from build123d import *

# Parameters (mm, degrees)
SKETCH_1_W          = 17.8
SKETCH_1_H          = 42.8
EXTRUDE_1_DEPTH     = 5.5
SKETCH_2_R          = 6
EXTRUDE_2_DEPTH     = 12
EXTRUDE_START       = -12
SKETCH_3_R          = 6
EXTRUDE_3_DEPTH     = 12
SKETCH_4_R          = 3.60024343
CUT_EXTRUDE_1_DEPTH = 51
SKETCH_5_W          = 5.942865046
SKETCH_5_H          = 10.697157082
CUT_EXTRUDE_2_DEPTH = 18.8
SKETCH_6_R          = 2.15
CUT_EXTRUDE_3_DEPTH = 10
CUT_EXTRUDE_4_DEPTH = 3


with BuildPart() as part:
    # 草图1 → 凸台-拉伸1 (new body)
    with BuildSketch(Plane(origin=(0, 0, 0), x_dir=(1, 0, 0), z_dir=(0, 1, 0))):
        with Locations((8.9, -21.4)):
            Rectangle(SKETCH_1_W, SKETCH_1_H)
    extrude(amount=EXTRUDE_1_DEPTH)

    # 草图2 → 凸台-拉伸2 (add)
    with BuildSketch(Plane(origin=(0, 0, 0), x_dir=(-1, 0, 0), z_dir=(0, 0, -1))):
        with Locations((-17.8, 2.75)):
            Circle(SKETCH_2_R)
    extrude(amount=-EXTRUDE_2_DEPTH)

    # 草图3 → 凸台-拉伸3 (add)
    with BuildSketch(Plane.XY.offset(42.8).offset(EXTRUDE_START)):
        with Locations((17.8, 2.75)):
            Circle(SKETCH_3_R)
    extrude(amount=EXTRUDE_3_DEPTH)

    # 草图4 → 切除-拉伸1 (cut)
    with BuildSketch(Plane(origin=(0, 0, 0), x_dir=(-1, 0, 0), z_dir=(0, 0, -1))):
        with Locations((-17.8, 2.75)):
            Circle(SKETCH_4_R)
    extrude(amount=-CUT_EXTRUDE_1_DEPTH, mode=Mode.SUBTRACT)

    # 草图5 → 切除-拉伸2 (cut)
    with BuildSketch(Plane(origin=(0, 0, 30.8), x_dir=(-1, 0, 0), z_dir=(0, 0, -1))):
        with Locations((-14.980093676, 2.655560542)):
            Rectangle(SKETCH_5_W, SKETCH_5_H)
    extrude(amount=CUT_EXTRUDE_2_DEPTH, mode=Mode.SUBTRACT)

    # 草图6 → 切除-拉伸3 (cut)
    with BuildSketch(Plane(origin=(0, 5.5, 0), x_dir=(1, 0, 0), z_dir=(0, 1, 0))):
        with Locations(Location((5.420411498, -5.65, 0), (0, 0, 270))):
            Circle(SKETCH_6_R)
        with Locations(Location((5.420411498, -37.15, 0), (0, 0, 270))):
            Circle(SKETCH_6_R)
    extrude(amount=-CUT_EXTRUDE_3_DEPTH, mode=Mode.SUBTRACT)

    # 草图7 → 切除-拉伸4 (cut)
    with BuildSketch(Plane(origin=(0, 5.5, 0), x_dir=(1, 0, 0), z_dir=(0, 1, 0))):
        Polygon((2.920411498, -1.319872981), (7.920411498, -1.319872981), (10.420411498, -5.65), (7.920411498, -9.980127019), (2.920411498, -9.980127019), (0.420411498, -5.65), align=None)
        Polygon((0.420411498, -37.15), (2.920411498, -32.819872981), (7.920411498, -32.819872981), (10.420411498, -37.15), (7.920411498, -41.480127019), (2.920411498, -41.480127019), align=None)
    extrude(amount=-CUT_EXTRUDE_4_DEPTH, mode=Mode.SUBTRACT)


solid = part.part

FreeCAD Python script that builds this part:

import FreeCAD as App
import Part
import Sketcher
from FreeCAD import Vector
Q = App.Units.Quantity


def add_polygon(sketch, points):
    """Adds a closed chain of lines whose ends are joined by coincident constraints."""
    first, n = sketch.GeometryCount, len(points)
    for a, b in zip(points, points[1:] + points[:1]):
        sketch.addGeometry(Part.LineSegment(App.Vector(*a, 0), App.Vector(*b, 0)), False)
    for i in range(n):
        sketch.addConstraint(Sketcher.Constraint("Coincident", first + i, 2, first + (i + 1) % n, 1))

doc = App.newDocument("Part")
body = doc.addObject("PartDesign::Body", "Body")

# Sketch on XZ plane
sketch1 = body.newObject("Sketcher::SketchObject", "Sketch")
sketch1.AttachmentSupport = (doc.getObject("XZ_Plane"), [""])
sketch1.MapMode = "FlatFace"
add_polygon(sketch1, [(0, 0), (0, 42.8), (17.8, 42.8), (17.8, 0)])  # lines 0-3
sketch1.addConstraint(Sketcher.Constraint("Vertical", 0))
sketch1.addConstraint(Sketcher.Constraint("Horizontal", 1))
sketch1.addConstraint(Sketcher.Constraint("Vertical", 2))
sketch1.addConstraint(Sketcher.Constraint("Horizontal", 3))
sketch1.addConstraint(Sketcher.Constraint("Coincident", 3, 2, -1, 1))
sketch1.addConstraint(Sketcher.Constraint("DistanceX", 1, 1, 1, 2, 17.8))
sketch1.addConstraint(Sketcher.Constraint("DistanceY", 0, 1, 0, 2, 42.8))
pad1 = body.newObject("PartDesign::Pad", "Pad")
pad1.Profile = sketch1
pad1.Length = 5.5
pad1.Reversed = True

# Sketch on XY plane
sketch2 = body.newObject("Sketcher::SketchObject", "Sketch001")
sketch2.AttachmentSupport = (doc.getObject("XY_Plane"), [""])
sketch2.MapMode = "FlatFace"
sketch2.addGeometry(Part.Circle(Vector(17.8, 2.75, 0), Vector(0, 0, 1), 6), False)
sketch2.addConstraint(Sketcher.Constraint("Diameter", 0, 12.0))
sketch2.addConstraint(Sketcher.Constraint("DistanceX", -1, 1, 0, 3, 17.8))
sketch2.addConstraint(Sketcher.Constraint("DistanceY", -1, 1, 0, 3, 2.75))
pad2 = body.newObject("PartDesign::Pad", "Pad001")
pad2.Profile = sketch2
pad2.Length = 12

# Sketch on XY plane
sketch3 = body.newObject("Sketcher::SketchObject", "Sketch002")
sketch3.AttachmentSupport = (doc.getObject("XY_Plane"), [""])
sketch3.MapMode = "FlatFace"
sketch3.AttachmentOffset = App.Placement(Vector(0, 0, 30.8), App.Rotation())
sketch3.addGeometry(Part.Circle(Vector(17.8, 2.75, 0), Vector(0, 0, 1), 6), False)
sketch3.addConstraint(Sketcher.Constraint("Diameter", 0, 12.0))
sketch3.addConstraint(Sketcher.Constraint("DistanceX", -1, 1, 0, 3, 17.8))
sketch3.addConstraint(Sketcher.Constraint("DistanceY", -1, 1, 0, 3, 2.75))
pad3 = body.newObject("PartDesign::Pad", "Pad002")
pad3.Profile = sketch3
pad3.Length = 12

# Sketch on XY plane
sketch4 = body.newObject("Sketcher::SketchObject", "Sketch003")
sketch4.AttachmentSupport = (doc.getObject("XY_Plane"), [""])
sketch4.MapMode = "FlatFace"
sketch4.addGeometry(Part.Circle(Vector(17.8, 2.75, 0), Vector(0, 0, 1), 3.600243), False)
sketch4.addConstraint(Sketcher.Constraint("DistanceX", -1, 1, 0, 3, 17.8))
sketch4.addConstraint(Sketcher.Constraint("DistanceY", -1, 1, 0, 3, 2.75))
sketch4.addConstraint(Sketcher.Constraint("Diameter", 0, 7.200487))
pocket1 = body.newObject("PartDesign::Pocket", "Pocket")
pocket1.Profile = sketch4
pocket1.Length = 51
pocket1.Reversed = True

# Sketch on XY plane
sketch5 = body.newObject("Sketcher::SketchObject", "Sketch004")
sketch5.AttachmentSupport = (doc.getObject("XY_Plane"), [""])
sketch5.MapMode = "FlatFace"
sketch5.AttachmentOffset = App.Placement(Vector(0, 0, 30.8), App.Rotation())
add_polygon(sketch5, [(17.951526, 8.004139), (17.951526, -2.693018), (12.008661, -2.693018), (12.008661, 8.004139)])  # lines 0-3
sketch5.addConstraint(Sketcher.Constraint("Vertical", 0))
sketch5.addConstraint(Sketcher.Constraint("Horizontal", 1))
sketch5.addConstraint(Sketcher.Constraint("Vertical", 2))
sketch5.addConstraint(Sketcher.Constraint("Horizontal", 3))
sketch5.addConstraint(Sketcher.Constraint("DistanceX", 1, 2, 1, 1, 5.942865))
sketch5.addConstraint(Sketcher.Constraint("DistanceY", 0, 2, 0, 1, 10.697157))
sketch5.addConstraint(Sketcher.Constraint("DistanceX", -1, 1, 1, 2, 12.008661))
sketch5.addConstraint(Sketcher.Constraint("DistanceY", -1, 1, 2, 2, 8.004139))
pocket2 = body.newObject("PartDesign::Pocket", "Pocket001")
pocket2.Profile = sketch5
pocket2.Length = 18.8

# Sketch on XZ plane
sketch6 = body.newObject("Sketcher::SketchObject", "Sketch005")
sketch6.AttachmentSupport = (doc.getObject("XZ_Plane"), [""])
sketch6.MapMode = "FlatFace"
sketch6.AttachmentOffset = App.Placement(Vector(0, 0, -5.5), App.Rotation())
sketch6.addGeometry(Part.Circle(Vector(5.420411, 5.65, 0), Vector(0, 0, 1), 2.15), False)
sketch6.addGeometry(Part.Circle(Vector(5.420411, 37.15, 0), Vector(0, 0, 1), 2.15), False)
sketch6.addConstraint(Sketcher.Constraint("Equal", 0, 1))
sketch6.addConstraint(Sketcher.Constraint("Vertical", 0, 3, 1, 3))
sketch6.addConstraint(Sketcher.Constraint("Diameter", 0, 4.3))
sketch6.addConstraint(Sketcher.Constraint("DistanceY", 0, 3, 1, 3, 31.5))
sketch6.addConstraint(Sketcher.Constraint("DistanceY", -1, 1, 0, 3, 5.65))
sketch6.addConstraint(Sketcher.Constraint("DistanceX", -1, 1, 0, 3, 5.420411))
pocket3 = body.newObject("PartDesign::Pocket", "Pocket002")
pocket3.Profile = sketch6
pocket3.Length = 10
pocket3.Reversed = True

# Sketch on XZ plane
sketch7 = body.newObject("Sketcher::SketchObject", "Sketch006")
sketch7.AttachmentSupport = (doc.getObject("XZ_Plane"), [""])
sketch7.MapMode = "FlatFace"
sketch7.AttachmentOffset = App.Placement(Vector(0, 0, -5.5), App.Rotation())
add_polygon(sketch7, [(7.920411, 1.319873), (2.920411, 1.319873), (0.420411, 5.65), (2.920411, 9.980127), (7.920411, 9.980127), (10.420411, 5.65)])  # lines 0-5
add_polygon(sketch7, [(2.920411, 32.819873), (0.420411, 37.15), (2.920411, 41.480127), (7.920411, 41.480127), (10.420411, 37.15), (7.920411, 32.819873)])  # lines 6-11
sketch7.addConstraint(Sketcher.Constraint("Horizontal", 0))
sketch7.addConstraint(Sketcher.Constraint("Horizontal", 3))
sketch7.addConstraint(Sketcher.Constraint("Horizontal", 8))
sketch7.addConstraint(Sketcher.Constraint("Horizontal", 11))
sketch7.addConstraint(Sketcher.Constraint("Parallel", 1, 4))
sketch7.addConstraint(Sketcher.Constraint("Parallel", 2, 5))
sketch7.addConstraint(Sketcher.Constraint("Parallel", 4, 6))
sketch7.addConstraint(Sketcher.Constraint("Parallel", 5, 7))
sketch7.addConstraint(Sketcher.Constraint("Parallel", 6, 9))
sketch7.addConstraint(Sketcher.Constraint("Parallel", 7, 10))
sketch7.addConstraint(Sketcher.Constraint("Horizontal", 1, 2, 4, 2))
sketch7.addConstraint(Sketcher.Constraint("Horizontal", 6, 2, 9, 2))
sketch7.addConstraint(Sketcher.Constraint("Vertical", 0, 2, 2, 2))
sketch7.addConstraint(Sketcher.Constraint("Vertical", 3, 2, 5, 2))
sketch7.addConstraint(Sketcher.Constraint("Vertical", 1, 2, 6, 2))
sketch7.addConstraint(Sketcher.Constraint("Vertical", 2, 2, 7, 2))
sketch7.addConstraint(Sketcher.Constraint("Vertical", 5, 2, 8, 2))
sketch7.addConstraint(Sketcher.Constraint("Vertical", 8, 2, 10, 2))
sketch7.addConstraint(Sketcher.Constraint("DistanceX", 0, 2, 0, 1, 5.0))
sketch7.addConstraint(Sketcher.Constraint("Angle", 1, Q("120 deg")))
sketch7.addConstraint(Sketcher.Constraint("Distance", 1, 5.0))
sketch7.addConstraint(Sketcher.Constraint("DistanceY", 1, 2, 6, 2, 31.5))
sketch7.addConstraint(Sketcher.Constraint("DistanceY", -1, 1, 1, 2, 5.65))
sketch7.addConstraint(Sketcher.Constraint("DistanceX", -1, 1, 0, 2, 2.920411))
pocket4 = body.newObject("PartDesign::Pocket", "Pocket003")
pocket4.Profile = sketch7
pocket4.Length = 3
pocket4.Reversed = True

doc.recompute()
